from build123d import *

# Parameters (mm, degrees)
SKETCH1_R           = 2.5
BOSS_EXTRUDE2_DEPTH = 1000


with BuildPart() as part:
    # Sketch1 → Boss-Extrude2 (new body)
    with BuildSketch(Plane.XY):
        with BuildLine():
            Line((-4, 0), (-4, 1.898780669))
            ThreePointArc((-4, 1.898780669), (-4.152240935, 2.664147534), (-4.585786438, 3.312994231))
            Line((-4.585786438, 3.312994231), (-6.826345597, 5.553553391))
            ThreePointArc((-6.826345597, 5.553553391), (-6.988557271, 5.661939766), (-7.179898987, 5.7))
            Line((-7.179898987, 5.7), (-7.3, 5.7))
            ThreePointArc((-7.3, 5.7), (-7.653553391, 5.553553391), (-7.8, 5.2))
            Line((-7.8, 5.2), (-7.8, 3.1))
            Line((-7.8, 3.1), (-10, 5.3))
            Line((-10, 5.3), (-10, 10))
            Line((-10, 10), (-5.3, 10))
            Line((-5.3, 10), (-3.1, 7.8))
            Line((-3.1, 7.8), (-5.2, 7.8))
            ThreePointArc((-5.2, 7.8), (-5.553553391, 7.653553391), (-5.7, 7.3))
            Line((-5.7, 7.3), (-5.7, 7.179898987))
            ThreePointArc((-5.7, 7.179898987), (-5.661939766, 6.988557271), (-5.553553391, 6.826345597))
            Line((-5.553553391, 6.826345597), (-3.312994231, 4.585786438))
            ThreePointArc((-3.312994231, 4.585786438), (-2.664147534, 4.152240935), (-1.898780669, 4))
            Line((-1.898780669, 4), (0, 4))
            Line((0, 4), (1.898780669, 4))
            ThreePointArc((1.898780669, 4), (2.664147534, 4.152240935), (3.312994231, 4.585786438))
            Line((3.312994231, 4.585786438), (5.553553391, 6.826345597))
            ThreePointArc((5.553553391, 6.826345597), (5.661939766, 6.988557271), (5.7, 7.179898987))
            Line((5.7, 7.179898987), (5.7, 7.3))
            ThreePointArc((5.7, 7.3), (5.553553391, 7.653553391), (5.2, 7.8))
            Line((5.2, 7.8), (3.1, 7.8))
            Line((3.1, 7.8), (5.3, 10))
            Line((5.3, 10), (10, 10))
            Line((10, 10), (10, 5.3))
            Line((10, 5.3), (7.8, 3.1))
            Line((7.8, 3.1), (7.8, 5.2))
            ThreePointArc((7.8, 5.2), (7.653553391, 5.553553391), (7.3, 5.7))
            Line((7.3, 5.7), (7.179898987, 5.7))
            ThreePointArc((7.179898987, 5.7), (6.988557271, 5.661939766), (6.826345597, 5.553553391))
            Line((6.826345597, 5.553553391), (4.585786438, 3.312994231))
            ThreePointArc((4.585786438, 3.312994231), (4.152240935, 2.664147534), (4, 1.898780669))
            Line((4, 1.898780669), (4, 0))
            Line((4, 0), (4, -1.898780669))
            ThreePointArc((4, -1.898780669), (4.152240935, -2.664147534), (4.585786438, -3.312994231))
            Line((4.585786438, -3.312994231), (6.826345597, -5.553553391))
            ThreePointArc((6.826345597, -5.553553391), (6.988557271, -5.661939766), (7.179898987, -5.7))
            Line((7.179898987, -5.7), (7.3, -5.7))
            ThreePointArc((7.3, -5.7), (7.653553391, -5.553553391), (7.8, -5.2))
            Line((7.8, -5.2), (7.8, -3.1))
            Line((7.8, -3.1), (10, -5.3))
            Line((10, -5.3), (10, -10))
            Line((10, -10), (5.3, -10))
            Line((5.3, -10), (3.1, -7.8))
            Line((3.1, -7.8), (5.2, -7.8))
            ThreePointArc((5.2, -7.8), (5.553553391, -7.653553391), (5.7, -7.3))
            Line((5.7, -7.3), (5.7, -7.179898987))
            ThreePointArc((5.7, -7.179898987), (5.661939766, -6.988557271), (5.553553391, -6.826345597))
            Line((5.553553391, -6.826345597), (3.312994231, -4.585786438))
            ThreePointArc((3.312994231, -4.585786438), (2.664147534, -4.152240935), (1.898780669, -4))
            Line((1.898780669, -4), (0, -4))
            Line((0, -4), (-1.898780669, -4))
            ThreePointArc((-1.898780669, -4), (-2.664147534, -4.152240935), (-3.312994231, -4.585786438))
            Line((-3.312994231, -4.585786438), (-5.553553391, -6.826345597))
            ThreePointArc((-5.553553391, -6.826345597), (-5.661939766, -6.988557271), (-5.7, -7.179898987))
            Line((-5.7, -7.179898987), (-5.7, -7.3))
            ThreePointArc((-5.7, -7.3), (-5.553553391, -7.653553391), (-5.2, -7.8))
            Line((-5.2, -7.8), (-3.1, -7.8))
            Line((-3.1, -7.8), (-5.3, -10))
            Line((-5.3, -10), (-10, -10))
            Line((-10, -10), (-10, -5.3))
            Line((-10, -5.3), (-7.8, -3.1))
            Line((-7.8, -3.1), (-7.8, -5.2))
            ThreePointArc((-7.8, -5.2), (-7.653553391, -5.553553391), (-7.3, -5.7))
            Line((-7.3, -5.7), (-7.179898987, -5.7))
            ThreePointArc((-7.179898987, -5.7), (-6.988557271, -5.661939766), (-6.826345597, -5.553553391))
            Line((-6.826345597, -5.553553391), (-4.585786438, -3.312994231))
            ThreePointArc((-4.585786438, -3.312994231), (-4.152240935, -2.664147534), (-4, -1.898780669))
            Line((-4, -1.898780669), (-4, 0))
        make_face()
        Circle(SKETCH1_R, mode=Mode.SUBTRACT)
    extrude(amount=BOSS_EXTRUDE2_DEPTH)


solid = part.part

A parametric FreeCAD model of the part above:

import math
import FreeCAD as App
import Part
import Sketcher
from FreeCAD import Vector
Q = App.Units.Quantity

doc = App.newDocument("Part")
params = doc.addObject("Spreadsheet::Sheet", "Params")
for row, (alias, value) in enumerate([
    ("sketch1_diameter", "5 mm"),
    ("sketch1_radius", "2 mm"),
    ("sketch1_radius2", "0.5 mm"),
    ("sketch1_width", "4.7 mm"),
    ("sketch1_width2", "2.1 mm"),
    ("pad1_length", "1000 mm"),
], start=1):
    params.set(f"A{row}", alias)
    params.set(f"B{row}", "=" + value)
    params.setAlias(f"B{row}", alias)

body = doc.addObject("PartDesign::Body", "Body")

sketch1 = body.newObject("Sketcher::SketchObject", "Sketch")
sketch1.AttachmentSupport = (doc.getObject("XY_Plane"), [""])
sketch1.MapMode = "FlatFace"
sketch1.addGeometry(Part.ArcOfCircle(Part.Circle(Vector(-6, 1.898781, 0), Vector(0, 0, 1), 2), math.radians(0), math.radians(45)), False)
sketch1.addGeometry(Part.LineSegment(Vector(-4, 1.898781, 0), Vector(-4, -1.898781, 0)), False)
sketch1.addGeometry(Part.ArcOfCircle(Part.Circle(Vector(-6, -1.898781, 0), Vector(0, 0, 1), 2), math.radians(-45), math.radians(0)), False)
sketch1.addGeometry(Part.LineSegment(Vector(-4.585786, -3.312994, 0), Vector(-6.826346, -5.553553, 0)), False)
sketch1.addGeometry(Part.ArcOfCircle(Part.Circle(Vector(-7.179899, -5.2, 0), Vector(0, 0, 1), 0.5), math.radians(-90), math.radians(-45)), False)
sketch1.addGeometry(Part.LineSegment(Vector(-7.179899, -5.7, 0), Vector(-7.3, -5.7, 0)), False)
sketch1.addGeometry(Part.ArcOfCircle(Part.Circle(Vector(-7.3, -5.2, 0), Vector(0, 0, 1), 0.5), math.radians(180), math.radians(270)), False)
sketch1.addGeometry(Part.LineSegment(Vector(-7.8, -5.2, 0), Vector(-7.8, -3.1, 0)), False)
sketch1.addGeometry(Part.LineSegment(Vector(-7.8, -3.1, 0), Vector(-10, -5.3, 0)), False)
sketch1.addGeometry(Part.LineSegment(Vector(-10, -5.3, 0), Vector(-10, -10, 0)), False)
sketch1.addGeometry(Part.LineSegment(Vector(-10, -10, 0), Vector(-5.3, -10, 0)), False)
sketch1.addGeometry(Part.LineSegment(Vector(-5.3, -10, 0), Vector(-3.1, -7.8, 0)), False)
sketch1.addGeometry(Part.LineSegment(Vector(-3.1, -7.8, 0), Vector(-5.2, -7.8, 0)), False)
sketch1.addGeometry(Part.ArcOfCircle(Part.Circle(Vector(-5.2, -7.3, 0), Vector(0, 0, 1), 0.5), math.radians(180), math.radians(270)), False)
sketch1.addGeometry(Part.LineSegment(Vector(-5.7, -7.3, 0), Vector(-5.7, -7.179899, 0)), False)
sketch1.addGeometry(Part.ArcOfCircle(Part.Circle(Vector(-5.2, -7.179899, 0), Vector(0, 0, 1), 0.5), math.radians(135), math.radians(180)), False)
sketch1.addGeometry(Part.LineSegment(Vector(-5.553553, -6.826346, 0), Vector(-3.312994, -4.585786, 0)), False)
sketch1.addGeometry(Part.ArcOfCircle(Part.Circle(Vector(-1.898781, -6, 0), Vector(0, 0, 1), 2), math.radians(90), math.radians(135)), False)
sketch1.addGeometry(Part.LineSegment(Vector(-1.898781, -4, 0), Vector(1.898781, -4, 0)), False)
sketch1.addGeometry(Part.ArcOfCircle(Part.Circle(Vector(1.898781, -6, 0), Vector(0, 0, 1), 2), math.radians(45), math.radians(90)), False)
sketch1.addGeometry(Part.LineSegment(Vector(3.312994, -4.585786, 0), Vector(5.553553, -6.826346, 0)), False)
sketch1.addGeometry(Part.ArcOfCircle(Part.Circle(Vector(5.2, -7.179899, 0), Vector(0, 0, 1), 0.5), math.radians(0), math.radians(45)), False)
sketch1.addGeometry(Part.LineSegment(Vector(5.7, -7.179899, 0), Vector(5.7, -7.3, 0)), False)
sketch1.addGeometry(Part.ArcOfCircle(Part.Circle(Vector(5.2, -7.3, 0), Vector(0, 0, 1), 0.5), math.radians(-90), math.radians(0)), False)
sketch1.addGeometry(Part.LineSegment(Vector(5.2, -7.8, 0), Vector(3.1, -7.8, 0)), False)
sketch1.addGeometry(Part.LineSegment(Vector(3.1, -7.8, 0), Vector(5.3, -10, 0)), False)
sketch1.addGeometry(Part.LineSegment(Vector(5.3, -10, 0), Vector(10, -10, 0)), False)
sketch1.addGeometry(Part.LineSegment(Vector(10, -10, 0), Vector(10, -5.3, 0)), False)
sketch1.addGeometry(Part.LineSegment(Vector(10, -5.3, 0), Vector(7.8, -3.1, 0)), False)
sketch1.addGeometry(Part.LineSegment(Vector(7.8, -3.1, 0), Vector(7.8, -5.2, 0)), False)
sketch1.addGeometry(Part.ArcOfCircle(Part.Circle(Vector(7.3, -5.2, 0), Vector(0, 0, 1), 0.5), math.radians(-90), math.radians(0)), False)
sketch1.addGeometry(Part.LineSegment(Vector(7.3, -5.7, 0), Vector(7.179899, -5.7, 0)), False)
sketch1.addGeometry(Part.ArcOfCircle(Part.Circle(Vector(7.179899, -5.2, 0), Vector(0, 0, 1), 0.5), math.radians(-135), math.radians(-90)), False)
sketch1.addGeometry(Part.LineSegment(Vector(6.826346, -5.553553, 0), Vector(4.585786, -3.312994, 0)), False)
sketch1.addGeometry(Part.ArcOfCircle(Part.Circle(Vector(6, -1.898781, 0), Vector(0, 0, 1), 2), math.radians(180), math.radians(225)), False)
sketch1.addGeometry(Part.LineSegment(Vector(4, -1.898781, 0), Vector(4, 1.898781, 0)), False)
sketch1.addGeometry(Part.ArcOfCircle(Part.Circle(Vector(6, 1.898781, 0), Vector(0, 0, 1), 2), math.radians(135), math.radians(180)), False)
sketch1.addGeometry(Part.LineSegment(Vector(4.585786, 3.312994, 0), Vector(6.826346, 5.553553, 0)), False)
sketch1.addGeometry(Part.ArcOfCircle(Part.Circle(Vector(7.179899, 5.2, 0), Vector(0, 0, 1), 0.5), math.radians(90), math.radians(135)), False)
sketch1.addGeometry(Part.LineSegment(Vector(7.179899, 5.7, 0), Vector(7.3, 5.7, 0)), False)
sketch1.addGeometry(Part.ArcOfCircle(Part.Circle(Vector(7.3, 5.2, 0), Vector(0, 0, 1), 0.5), math.radians(0), math.radians(90)), False)
sketch1.addGeometry(Part.LineSegment(Vector(7.8, 5.2, 0), Vector(7.8, 3.1, 0)), False)
sketch1.addGeometry(Part.LineSegment(Vector(7.8, 3.1, 0), Vector(10, 5.3, 0)), False)
sketch1.addGeometry(Part.LineSegment(Vector(10, 5.3, 0), Vector(10, 10, 0)), False)
sketch1.addGeometry(Part.LineSegment(Vector(10, 10, 0), Vector(5.3, 10, 0)), False)
sketch1.addGeometry(Part.LineSegment(Vector(5.3, 10, 0), Vector(3.1, 7.8, 0)), False)
sketch1.addGeometry(Part.LineSegment(Vector(3.1, 7.8, 0), Vector(5.2, 7.8, 0)), False)
sketch1.addGeometry(Part.ArcOfCircle(Part.Circle(Vector(5.2, 7.3, 0), Vector(0, 0, 1), 0.5), math.radians(0), math.radians(90)), False)
sketch1.addGeometry(Part.LineSegment(Vector(5.7, 7.3, 0), Vector(5.7, 7.179899, 0)), False)
sketch1.addGeometry(Part.ArcOfCircle(Part.Circle(Vector(5.2, 7.179899, 0), Vector(0, 0, 1), 0.5), math.radians(-45), math.radians(0)), False)
sketch1.addGeometry(Part.LineSegment(Vector(5.553553, 6.826346, 0), Vector(3.312994, 4.585786, 0)), False)
sketch1.addGeometry(Part.ArcOfCircle(Part.Circle(Vector(1.898781, 6, 0), Vector(0, 0, 1), 2), math.radians(-90), math.radians(-45)), False)
sketch1.addGeometry(Part.LineSegment(Vector(1.898781, 4, 0), Vector(-1.898781, 4, 0)), False)
sketch1.addGeometry(Part.ArcOfCircle(Part.Circle(Vector(-1.898781, 6, 0), Vector(0, 0, 1), 2), math.radians(-135), math.radians(-90)), False)
sketch1.addGeometry(Part.LineSegment(Vector(-3.312994, 4.585786, 0), Vector(-5.553553, 6.826346, 0)), False)
sketch1.addGeometry(Part.ArcOfCircle(Part.Circle(Vector(-5.2, 7.179899, 0), Vector(0, 0, 1), 0.5), math.radians(-180), math.radians(-135)), False)
sketch1.addGeometry(Part.LineSegment(Vector(-5.7, 7.179899, 0), Vector(-5.7, 7.3, 0)), False)
sketch1.addGeometry(Part.ArcOfCircle(Part.Circle(Vector(-5.2, 7.3, 0), Vector(0, 0, 1), 0.5), math.radians(90), math.radians(180)), False)
sketch1.addGeometry(Part.LineSegment(Vector(-5.2, 7.8, 0), Vector(-3.1, 7.8, 0)), False)
sketch1.addGeometry(Part.LineSegment(Vector(-3.1, 7.8, 0), Vector(-5.3, 10, 0)), False)
sketch1.addGeometry(Part.LineSegment(Vector(-5.3, 10, 0), Vector(-10, 10, 0)), False)
sketch1.addGeometry(Part.LineSegment(Vector(-10, 10, 0), Vector(-10, 5.3, 0)), False)
sketch1.addGeometry(Part.LineSegment(Vector(-10, 5.3, 0), Vector(-7.8, 3.1, 0)), False)
sketch1.addGeometry(Part.LineSegment(Vector(-7.8, 3.1, 0), Vector(-7.8, 5.2, 0)), False)
sketch1.addGeometry(Part.ArcOfCircle(Part.Circle(Vector(-7.3, 5.2, 0), Vector(0, 0, 1), 0.5), math.radians(90), math.radians(180)), False)
sketch1.addGeometry(Part.LineSegment(Vector(-7.3, 5.7, 0), Vector(-7.179899, 5.7, 0)), False)
sketch1.addGeometry(Part.ArcOfCircle(Part.Circle(Vector(-7.179899, 5.2, 0), Vector(0, 0, 1), 0.5), math.radians(45), math.radians(90)), False)
sketch1.addGeometry(Part.LineSegment(Vector(-6.826346, 5.553553, 0), Vector(-4.585786, 3.312994, 0)), False)
sketch1.addGeometry(Part.Circle(Vector(0, 0, 0), Vector(0, 0, 1), 2.5), False)
sketch1.addConstraint(Sketcher.Constraint("Tangent", 0, 1, 1, 1))
sketch1.addConstraint(Sketcher.Constraint("Tangent", 1, 2, 2, 2))
sketch1.addConstraint(Sketcher.Constraint("Tangent", 2, 1, 3, 1))
sketch1.addConstraint(Sketcher.Constraint("Tangent", 3, 2, 4, 2))
sketch1.addConstraint(Sketcher.Constraint("Tangent", 4, 1, 5, 1))
sketch1.addConstraint(Sketcher.Constraint("Tangent", 5, 2, 6, 2))
sketch1.addConstraint(Sketcher.Constraint("Tangent", 6, 1, 7, 1))
sketch1.addConstraint(Sketcher.Constraint("Coincident", 7, 2, 8, 1))
sketch1.addConstraint(Sketcher.Constraint("Coincident", 8, 2, 9, 1))
sketch1.addConstraint(Sketcher.Constraint("Coincident", 9, 2, 10, 1))
sketch1.addConstraint(Sketcher.Constraint("Coincident", 10, 2, 11, 1))
sketch1.addConstraint(Sketcher.Constraint("Coincident", 11, 2, 12, 1))
sketch1.addConstraint(Sketcher.Constraint("Tangent", 12, 2, 13, 2))
sketch1.addConstraint(Sketcher.Constraint("Tangent", 13, 1, 14, 1))
sketch1.addConstraint(Sketcher.Constraint("Tangent", 14, 2, 15, 2))
sketch1.addConstraint(Sketcher.Constraint("Tangent", 15, 1, 16, 1))
sketch1.addConstraint(Sketcher.Constraint("Tangent", 16, 2, 17, 2))
sketch1.addConstraint(Sketcher.Constraint("Tangent", 17, 1, 18, 1))
sketch1.addConstraint(Sketcher.Constraint("Tangent", 18, 2, 19, 2))
sketch1.addConstraint(Sketcher.Constraint("Tangent", 19, 1, 20, 1))
sketch1.addConstraint(Sketcher.Constraint("Tangent", 20, 2, 21, 2))
sketch1.addConstraint(Sketcher.Constraint("Tangent", 21, 1, 22, 1))
sketch1.addConstraint(Sketcher.Constraint("Tangent", 22, 2, 23, 2))
sketch1.addConstraint(Sketcher.Constraint("Tangent", 23, 1, 24, 1))
sketch1.addConstraint(Sketcher.Constraint("Coincident", 24, 2, 25, 1))
sketch1.addConstraint(Sketcher.Constraint("Coincident", 25, 2, 26, 1))
sketch1.addConstraint(Sketcher.Constraint("Coincident", 26, 2, 27, 1))
sketch1.addConstraint(Sketcher.Constraint("Coincident", 27, 2, 28, 1))
sketch1.addConstraint(Sketcher.Constraint("Coincident", 28, 2, 29, 1))
sketch1.addConstraint(Sketcher.Constraint("Tangent", 29, 2, 30, 2))
sketch1.addConstraint(Sketcher.Constraint("Tangent", 30, 1, 31, 1))
sketch1.addConstraint(Sketcher.Constraint("Tangent", 31, 2, 32, 2))
sketch1.addConstraint(Sketcher.Constraint("Tangent", 32, 1, 33, 1))
sketch1.addConstraint(Sketcher.Constraint("Tangent", 33, 2, 34, 2))
sketch1.addConstraint(Sketcher.Constraint("Tangent", 34, 1, 35, 1))
sketch1.addConstraint(Sketcher.Constraint("Tangent", 35, 2, 36, 2))
sketch1.addConstraint(Sketcher.Constraint("Tangent", 36, 1, 37, 1))
sketch1.addConstraint(Sketcher.Constraint("Tangent", 37, 2, 38, 2))
sketch1.addConstraint(Sketcher.Constraint("Tangent", 38, 1, 39, 1))
sketch1.addConstraint(Sketcher.Constraint("Tangent", 39, 2, 40, 2))
sketch1.addConstraint(Sketcher.Constraint("Tangent", 40, 1, 41, 1))
sketch1.addConstraint(Sketcher.Constraint("Coincident", 41, 2, 42, 1))
sketch1.addConstraint(Sketcher.Constraint("Coincident", 42, 2, 43, 1))
sketch1.addConstraint(Sketcher.Constraint("Coincident", 43, 2, 44, 1))
sketch1.addConstraint(Sketcher.Constraint("Coincident", 44, 2, 45, 1))
sketch1.addConstraint(Sketcher.Constraint("Coincident", 45, 2, 46, 1))
sketch1.addConstraint(Sketcher.Constraint("Tangent", 46, 2, 47, 2))
sketch1.addConstraint(Sketcher.Constraint("Tangent", 47, 1, 48, 1))
sketch1.addConstraint(Sketcher.Constraint("Tangent", 48, 2, 49, 2))
sketch1.addConstraint(Sketcher.Constraint("Tangent", 49, 1, 50, 1))
sketch1.addConstraint(Sketcher.Constraint("Tangent", 50, 2, 51, 2))
sketch1.addConstraint(Sketcher.Constraint("Tangent", 51, 1, 52, 1))
sketch1.addConstraint(Sketcher.Constraint("Tangent", 52, 2, 53, 2))
sketch1.addConstraint(Sketcher.Constraint("Tangent", 53, 1, 54, 1))
sketch1.addConstraint(Sketcher.Constraint("Tangent", 54, 2, 55, 2))
sketch1.addConstraint(Sketcher.Constraint("Tangent", 55, 1, 56, 1))
sketch1.addConstraint(Sketcher.Constraint("Tangent", 56, 2, 57, 2))
sketch1.addConstraint(Sketcher.Constraint("Tangent", 57, 1, 58, 1))
sketch1.addConstraint(Sketcher.Constraint("Coincident", 58, 2, 59, 1))
sketch1.addConstraint(Sketcher.Constraint("Coincident", 59, 2, 60, 1))
sketch1.addConstraint(Sketcher.Constraint("Coincident", 60, 2, 61, 1))
sketch1.addConstraint(Sketcher.Constraint("Coincident", 61, 2, 62, 1))
sketch1.addConstraint(Sketcher.Constraint("Coincident", 62, 2, 63, 1))
sketch1.addConstraint(Sketcher.Constraint("Tangent", 63, 2, 64, 2))
sketch1.addConstraint(Sketcher.Constraint("Tangent", 64, 1, 65, 1))
sketch1.addConstraint(Sketcher.Constraint("Tangent", 65, 2, 66, 2))
sketch1.addConstraint(Sketcher.Constraint("Tangent", 66, 1, 67, 1))
sketch1.addConstraint(Sketcher.Constraint("Tangent", 67, 2, 0, 2))
sketch1.addConstraint(Sketcher.Constraint("Vertical", 1))
sketch1.addConstraint(Sketcher.Constraint("Horizontal", 5))
sketch1.addConstraint(Sketcher.Constraint("Vertical", 7))
sketch1.addConstraint(Sketcher.Constraint("Vertical", 9))
sketch1.addConstraint(Sketcher.Constraint("Horizontal", 10))
sketch1.addConstraint(Sketcher.Constraint("Horizontal", 12))
sketch1.addConstraint(Sketcher.Constraint("Vertical", 14))
sketch1.addConstraint(Sketcher.Constraint("Horizontal", 18))
sketch1.addConstraint(Sketcher.Constraint("Vertical", 22))
sketch1.addConstraint(Sketcher.Constraint("Horizontal", 24))
sketch1.addConstraint(Sketcher.Constraint("Horizontal", 26))
sketch1.addConstraint(Sketcher.Constraint("Vertical", 27))
sketch1.addConstraint(Sketcher.Constraint("Vertical", 29))
sketch1.addConstraint(Sketcher.Constraint("Horizontal", 31))
sketch1.addConstraint(Sketcher.Constraint("Vertical", 35))
sketch1.addConstraint(Sketcher.Constraint("Horizontal", 39))
sketch1.addConstraint(Sketcher.Constraint("Vertical", 41))
sketch1.addConstraint(Sketcher.Constraint("Vertical", 43))
sketch1.addConstraint(Sketcher.Constraint("Horizontal", 44))
sketch1.addConstraint(Sketcher.Constraint("Horizontal", 46))
sketch1.addConstraint(Sketcher.Constraint("Vertical", 48))
sketch1.addConstraint(Sketcher.Constraint("Horizontal", 52))
sketch1.addConstraint(Sketcher.Constraint("Vertical", 56))
sketch1.addConstraint(Sketcher.Constraint("Horizontal", 58))
sketch1.addConstraint(Sketcher.Constraint("Horizontal", 60))
sketch1.addConstraint(Sketcher.Constraint("Vertical", 61))
sketch1.addConstraint(Sketcher.Constraint("Vertical", 63))
sketch1.addConstraint(Sketcher.Constraint("Horizontal", 65))
sketch1.addConstraint(Sketcher.Constraint("Coincident", 68, 3, -1, 1))
sketch1.addConstraint(Sketcher.Constraint("Equal", 0, 2))
sketch1.addConstraint(Sketcher.Constraint("Equal", 4, 6))
sketch1.addConstraint(Sketcher.Constraint("Equal", 6, 13))
sketch1.addConstraint(Sketcher.Constraint("Equal", 13, 15))
sketch1.addConstraint(Sketcher.Constraint("Equal", 2, 17))
sketch1.addConstraint(Sketcher.Constraint("Equal", 17, 19))
sketch1.addConstraint(Sketcher.Constraint("Equal", 15, 21))
sketch1.addConstraint(Sketcher.Constraint("Equal", 21, 23))
sketch1.addConstraint(Sketcher.Constraint("Equal", 23, 30))
sketch1.addConstraint(Sketcher.Constraint("Equal", 30, 32))
sketch1.addConstraint(Sketcher.Constraint("Equal", 19, 34))
sketch1.addConstraint(Sketcher.Constraint("Equal", 34, 36))
sketch1.addConstraint(Sketcher.Constraint("Equal", 32, 38))
sketch1.addConstraint(Sketcher.Constraint("Equal", 38, 40))
sketch1.addConstraint(Sketcher.Constraint("Equal", 40, 47))
sketch1.addConstraint(Sketcher.Constraint("Equal", 47, 49))
sketch1.addConstraint(Sketcher.Constraint("Equal", 36, 51))
sketch1.addConstraint(Sketcher.Constraint("Equal", 51, 53))
sketch1.addConstraint(Sketcher.Constraint("Equal", 49, 55))
sketch1.addConstraint(Sketcher.Constraint("Equal", 55, 57))
sketch1.addConstraint(Sketcher.Constraint("Equal", 57, 64))
sketch1.addConstraint(Sketcher.Constraint("Equal", 64, 66))
sketch1.addConstraint(Sketcher.Constraint("Symmetric", 0, 3, 34, 3, -1, 1))
sketch1.addConstraint(Sketcher.Constraint("Symmetric", 4, 3, 38, 3, -1, 1))
sketch1.addConstraint(Sketcher.Constraint("Symmetric", 13, 3, 47, 3, -1, 1))
sketch1.addConstraint(Sketcher.Constraint("Symmetric", 17, 3, 51, 3, -1, 1))
sketch1.addConstraint(Sketcher.Constraint("Symmetric", 21, 3, 55, 3, -1, 1))
sketch1.addConstraint(Sketcher.Constraint("Symmetric", 30, 3, 64, 3, -1, 1))
sketch1.addConstraint(Sketcher.Constraint("Symmetric", 7, 2, 41, 2, -1, 1))
sketch1.addConstraint(Sketcher.Constraint("Symmetric", 8, 2, 42, 2, -1, 1))
sketch1.addConstraint(Sketcher.Constraint("Symmetric", 10, 2, 44, 2, -1, 1))
sketch1.addConstraint(Sketcher.Constraint("Symmetric", 24, 2, 58, 2, -1, 1))
sketch1.addConstraint(Sketcher.Constraint("Symmetric", 25, 2, 59, 2, -1, 1))
sketch1.addConstraint(Sketcher.Constraint("Symmetric", 27, 2, 61, 2, -1, 1))
sketch1.addConstraint(Sketcher.Constraint("Symmetric", 15, 3, 21, 3, -2))
sketch1.addConstraint(Sketcher.Constraint("Symmetric", 6, 3, 30, 3, -2))
sketch1.addConstraint(Sketcher.Constraint("Symmetric", 11, 2, 24, 2, -2))
sketch1.addConstraint(Sketcher.Constraint("Symmetric", 10, 2, 25, 2, -2))
sketch1.addConstraint(Sketcher.Constraint("Symmetric", 8, 2, 27, 2, -2))
sketch1.addConstraint(Sketcher.Constraint("Symmetric", 3, 2, 32, 1, -2))
sketch1.addConstraint(Sketcher.Constraint("Symmetric", 50, 2, 53, 1, -2))
sketch1.addConstraint(Sketcher.Constraint("Symmetric", 37, 2, 66, 1, -2))
sketch1.addConstraint(Sketcher.Constraint("Parallel", 3, 8))
sketch1.addConstraint(Sketcher.Constraint("Parallel", 8, 11))
sketch1.addConstraint(Sketcher.Constraint("Parallel", 11, 16))
sketch1.addConstraint(Sketcher.Constraint("Perpendicular", 16, 20))
sketch1.addConstraint(Sketcher.Constraint("Parallel", 20, 25))
sketch1.addConstraint(Sketcher.Constraint("Parallel", 25, 28))
sketch1.addConstraint(Sketcher.Constraint("Parallel", 42, 45))
sketch1.addConstraint(Sketcher.Constraint("Parallel", 59, 62))
sketch1.addConstraint(Sketcher.Constraint("Equal", 52, 1))
sketch1.addConstraint(Sketcher.Constraint("Equal", 58, 7))
sketch1.addConstraint(Sketcher.Constraint("Equal", 60, 9))
sketch1.addConstraint(Sketcher.Constraint("Equal", 65, 14))
sketch1.addConstraint(Sketcher.Constraint("Equal", 8, 11))
sketch1.addConstraint(Sketcher.Constraint("Equal", 3, 16))
sketch1.addConstraint(Sketcher.Constraint("Diameter", 68, Q("5 mm")))
sketch1.addConstraint(Sketcher.Constraint("Radius", 0, Q("2 mm")))
sketch1.addConstraint(Sketcher.Constraint("Radius", 4, Q("0.5 mm")))
sketch1.addConstraint(Sketcher.Constraint("DistanceX", 10, 1, 10, 2, Q("4.7 mm")))
sketch1.addConstraint(Sketcher.Constraint("DistanceX", 12, 2, 12, 1, Q("2.1 mm")))
sketch1.addConstraint(Sketcher.Constraint("DistanceX", 0, 3, -1, 1, Q("6 mm")))
sketch1.addConstraint(Sketcher.Constraint("DistanceX", 8, 2, -1, 1, Q("10 mm")))
sketch1.addConstraint(Sketcher.Constraint("DistanceY", 4, 3, -1, 1, Q("5.2 mm")))
sketch1.addConstraint(Sketcher.Constraint("DistanceX", 5, 2, 5, 1, Q("0.120101 mm")))
sketch1.setExpression("Constraints[153]", "Params.sketch1_diameter")
sketch1.setExpression("Constraints[154]", "Params.sketch1_radius")
sketch1.setExpression("Constraints[155]", "Params.sketch1_radius2")
sketch1.setExpression("Constraints[156]", "Params.sketch1_width")
sketch1.setExpression("Constraints[157]", "Params.sketch1_width2")
pad1 = body.newObject("PartDesign::Pad", "Pad")
pad1.Profile = sketch1
pad1.setExpression("Length", "Params.pad1_length")

doc.recompute()
